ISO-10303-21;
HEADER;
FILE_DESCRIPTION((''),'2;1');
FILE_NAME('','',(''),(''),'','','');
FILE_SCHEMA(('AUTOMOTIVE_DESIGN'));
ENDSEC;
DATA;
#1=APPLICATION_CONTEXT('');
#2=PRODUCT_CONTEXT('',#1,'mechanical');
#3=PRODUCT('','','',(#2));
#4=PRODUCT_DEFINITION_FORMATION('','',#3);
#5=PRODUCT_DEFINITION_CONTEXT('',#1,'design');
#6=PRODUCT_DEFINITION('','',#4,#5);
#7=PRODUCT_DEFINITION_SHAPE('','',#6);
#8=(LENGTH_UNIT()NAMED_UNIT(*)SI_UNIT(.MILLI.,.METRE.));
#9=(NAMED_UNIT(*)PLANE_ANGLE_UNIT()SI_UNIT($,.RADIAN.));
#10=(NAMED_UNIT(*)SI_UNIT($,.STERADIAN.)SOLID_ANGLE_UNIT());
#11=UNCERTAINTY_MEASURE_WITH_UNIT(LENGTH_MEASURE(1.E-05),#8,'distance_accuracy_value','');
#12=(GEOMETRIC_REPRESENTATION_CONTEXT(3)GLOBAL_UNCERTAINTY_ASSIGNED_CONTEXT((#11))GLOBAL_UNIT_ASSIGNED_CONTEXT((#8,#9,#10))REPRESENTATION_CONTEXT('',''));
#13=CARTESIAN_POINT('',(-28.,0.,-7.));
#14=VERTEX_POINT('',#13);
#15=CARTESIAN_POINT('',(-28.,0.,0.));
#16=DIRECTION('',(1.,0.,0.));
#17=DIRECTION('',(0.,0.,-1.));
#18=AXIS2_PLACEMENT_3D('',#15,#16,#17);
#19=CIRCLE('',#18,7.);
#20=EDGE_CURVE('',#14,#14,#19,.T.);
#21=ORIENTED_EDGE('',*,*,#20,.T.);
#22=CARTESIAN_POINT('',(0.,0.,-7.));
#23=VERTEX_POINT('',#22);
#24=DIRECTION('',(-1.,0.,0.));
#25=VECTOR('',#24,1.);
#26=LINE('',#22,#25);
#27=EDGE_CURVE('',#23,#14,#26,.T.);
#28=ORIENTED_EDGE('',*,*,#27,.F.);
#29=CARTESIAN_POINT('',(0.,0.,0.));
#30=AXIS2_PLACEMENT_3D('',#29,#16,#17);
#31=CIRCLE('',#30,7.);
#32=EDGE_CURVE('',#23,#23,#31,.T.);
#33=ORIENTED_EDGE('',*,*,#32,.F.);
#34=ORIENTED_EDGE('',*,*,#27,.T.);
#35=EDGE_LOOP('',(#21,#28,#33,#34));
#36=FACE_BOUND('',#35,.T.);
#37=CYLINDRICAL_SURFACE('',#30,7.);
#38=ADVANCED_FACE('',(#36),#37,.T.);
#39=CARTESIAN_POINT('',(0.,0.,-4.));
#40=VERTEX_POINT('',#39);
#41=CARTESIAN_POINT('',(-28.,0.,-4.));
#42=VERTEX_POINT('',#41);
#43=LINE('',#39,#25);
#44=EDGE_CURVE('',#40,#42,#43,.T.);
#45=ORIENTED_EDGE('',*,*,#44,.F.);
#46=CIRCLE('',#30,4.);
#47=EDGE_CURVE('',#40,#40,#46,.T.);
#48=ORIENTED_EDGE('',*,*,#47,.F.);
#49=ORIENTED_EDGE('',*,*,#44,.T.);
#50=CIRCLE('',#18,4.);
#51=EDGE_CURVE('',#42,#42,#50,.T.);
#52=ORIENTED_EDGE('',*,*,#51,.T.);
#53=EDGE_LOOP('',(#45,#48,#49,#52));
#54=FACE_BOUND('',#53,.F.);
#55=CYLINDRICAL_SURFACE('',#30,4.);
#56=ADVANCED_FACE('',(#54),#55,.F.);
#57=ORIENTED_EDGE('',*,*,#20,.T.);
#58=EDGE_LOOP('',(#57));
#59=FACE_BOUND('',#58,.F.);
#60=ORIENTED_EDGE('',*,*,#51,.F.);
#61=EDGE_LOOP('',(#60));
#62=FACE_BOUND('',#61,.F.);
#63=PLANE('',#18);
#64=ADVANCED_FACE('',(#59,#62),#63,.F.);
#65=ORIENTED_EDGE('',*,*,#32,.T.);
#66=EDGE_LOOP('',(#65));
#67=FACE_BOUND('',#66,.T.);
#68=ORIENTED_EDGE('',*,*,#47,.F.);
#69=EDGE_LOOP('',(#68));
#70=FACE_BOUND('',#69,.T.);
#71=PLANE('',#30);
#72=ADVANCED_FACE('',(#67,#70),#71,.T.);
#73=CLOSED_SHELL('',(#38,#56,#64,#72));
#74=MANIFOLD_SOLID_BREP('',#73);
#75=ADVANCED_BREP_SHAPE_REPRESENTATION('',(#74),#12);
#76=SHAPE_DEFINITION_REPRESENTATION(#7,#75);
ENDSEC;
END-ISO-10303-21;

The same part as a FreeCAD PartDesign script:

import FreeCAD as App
import Part
import Sketcher

V = App.Vector
Q = App.Units.Quantity

doc = App.newDocument("Part")
body = doc.addObject("PartDesign::Body", "Body")

# Sketch on YZ plane
sketch1 = body.newObject("Sketcher::SketchObject", "Sketch")
sketch1.AttachmentSupport = (doc.getObject("YZ_Plane"), [""])
sketch1.MapMode = "FlatFace"
sketch1.addGeometry([
    Part.Circle(V(0, 0, 0), V(0, 0, 1), 7),
    Part.Circle(V(0, 0, 0), V(0, 0, 1), 4),
], False)
sketch1.addConstraint([
    Sketcher.Constraint("Coincident", 0, 3, -1, 1),
    Sketcher.Constraint("Coincident", 1, 3, -1, 1),
    Sketcher.Constraint("Diameter", 0, Q("14 mm")),
    Sketcher.Constraint("Diameter", 1, Q("8 mm")),
])
pad1 = body.newObject("PartDesign::Pad", "Pad")
pad1.Profile = sketch1
pad1.Length = 28
pad1.Reversed = True

doc.recompute()
